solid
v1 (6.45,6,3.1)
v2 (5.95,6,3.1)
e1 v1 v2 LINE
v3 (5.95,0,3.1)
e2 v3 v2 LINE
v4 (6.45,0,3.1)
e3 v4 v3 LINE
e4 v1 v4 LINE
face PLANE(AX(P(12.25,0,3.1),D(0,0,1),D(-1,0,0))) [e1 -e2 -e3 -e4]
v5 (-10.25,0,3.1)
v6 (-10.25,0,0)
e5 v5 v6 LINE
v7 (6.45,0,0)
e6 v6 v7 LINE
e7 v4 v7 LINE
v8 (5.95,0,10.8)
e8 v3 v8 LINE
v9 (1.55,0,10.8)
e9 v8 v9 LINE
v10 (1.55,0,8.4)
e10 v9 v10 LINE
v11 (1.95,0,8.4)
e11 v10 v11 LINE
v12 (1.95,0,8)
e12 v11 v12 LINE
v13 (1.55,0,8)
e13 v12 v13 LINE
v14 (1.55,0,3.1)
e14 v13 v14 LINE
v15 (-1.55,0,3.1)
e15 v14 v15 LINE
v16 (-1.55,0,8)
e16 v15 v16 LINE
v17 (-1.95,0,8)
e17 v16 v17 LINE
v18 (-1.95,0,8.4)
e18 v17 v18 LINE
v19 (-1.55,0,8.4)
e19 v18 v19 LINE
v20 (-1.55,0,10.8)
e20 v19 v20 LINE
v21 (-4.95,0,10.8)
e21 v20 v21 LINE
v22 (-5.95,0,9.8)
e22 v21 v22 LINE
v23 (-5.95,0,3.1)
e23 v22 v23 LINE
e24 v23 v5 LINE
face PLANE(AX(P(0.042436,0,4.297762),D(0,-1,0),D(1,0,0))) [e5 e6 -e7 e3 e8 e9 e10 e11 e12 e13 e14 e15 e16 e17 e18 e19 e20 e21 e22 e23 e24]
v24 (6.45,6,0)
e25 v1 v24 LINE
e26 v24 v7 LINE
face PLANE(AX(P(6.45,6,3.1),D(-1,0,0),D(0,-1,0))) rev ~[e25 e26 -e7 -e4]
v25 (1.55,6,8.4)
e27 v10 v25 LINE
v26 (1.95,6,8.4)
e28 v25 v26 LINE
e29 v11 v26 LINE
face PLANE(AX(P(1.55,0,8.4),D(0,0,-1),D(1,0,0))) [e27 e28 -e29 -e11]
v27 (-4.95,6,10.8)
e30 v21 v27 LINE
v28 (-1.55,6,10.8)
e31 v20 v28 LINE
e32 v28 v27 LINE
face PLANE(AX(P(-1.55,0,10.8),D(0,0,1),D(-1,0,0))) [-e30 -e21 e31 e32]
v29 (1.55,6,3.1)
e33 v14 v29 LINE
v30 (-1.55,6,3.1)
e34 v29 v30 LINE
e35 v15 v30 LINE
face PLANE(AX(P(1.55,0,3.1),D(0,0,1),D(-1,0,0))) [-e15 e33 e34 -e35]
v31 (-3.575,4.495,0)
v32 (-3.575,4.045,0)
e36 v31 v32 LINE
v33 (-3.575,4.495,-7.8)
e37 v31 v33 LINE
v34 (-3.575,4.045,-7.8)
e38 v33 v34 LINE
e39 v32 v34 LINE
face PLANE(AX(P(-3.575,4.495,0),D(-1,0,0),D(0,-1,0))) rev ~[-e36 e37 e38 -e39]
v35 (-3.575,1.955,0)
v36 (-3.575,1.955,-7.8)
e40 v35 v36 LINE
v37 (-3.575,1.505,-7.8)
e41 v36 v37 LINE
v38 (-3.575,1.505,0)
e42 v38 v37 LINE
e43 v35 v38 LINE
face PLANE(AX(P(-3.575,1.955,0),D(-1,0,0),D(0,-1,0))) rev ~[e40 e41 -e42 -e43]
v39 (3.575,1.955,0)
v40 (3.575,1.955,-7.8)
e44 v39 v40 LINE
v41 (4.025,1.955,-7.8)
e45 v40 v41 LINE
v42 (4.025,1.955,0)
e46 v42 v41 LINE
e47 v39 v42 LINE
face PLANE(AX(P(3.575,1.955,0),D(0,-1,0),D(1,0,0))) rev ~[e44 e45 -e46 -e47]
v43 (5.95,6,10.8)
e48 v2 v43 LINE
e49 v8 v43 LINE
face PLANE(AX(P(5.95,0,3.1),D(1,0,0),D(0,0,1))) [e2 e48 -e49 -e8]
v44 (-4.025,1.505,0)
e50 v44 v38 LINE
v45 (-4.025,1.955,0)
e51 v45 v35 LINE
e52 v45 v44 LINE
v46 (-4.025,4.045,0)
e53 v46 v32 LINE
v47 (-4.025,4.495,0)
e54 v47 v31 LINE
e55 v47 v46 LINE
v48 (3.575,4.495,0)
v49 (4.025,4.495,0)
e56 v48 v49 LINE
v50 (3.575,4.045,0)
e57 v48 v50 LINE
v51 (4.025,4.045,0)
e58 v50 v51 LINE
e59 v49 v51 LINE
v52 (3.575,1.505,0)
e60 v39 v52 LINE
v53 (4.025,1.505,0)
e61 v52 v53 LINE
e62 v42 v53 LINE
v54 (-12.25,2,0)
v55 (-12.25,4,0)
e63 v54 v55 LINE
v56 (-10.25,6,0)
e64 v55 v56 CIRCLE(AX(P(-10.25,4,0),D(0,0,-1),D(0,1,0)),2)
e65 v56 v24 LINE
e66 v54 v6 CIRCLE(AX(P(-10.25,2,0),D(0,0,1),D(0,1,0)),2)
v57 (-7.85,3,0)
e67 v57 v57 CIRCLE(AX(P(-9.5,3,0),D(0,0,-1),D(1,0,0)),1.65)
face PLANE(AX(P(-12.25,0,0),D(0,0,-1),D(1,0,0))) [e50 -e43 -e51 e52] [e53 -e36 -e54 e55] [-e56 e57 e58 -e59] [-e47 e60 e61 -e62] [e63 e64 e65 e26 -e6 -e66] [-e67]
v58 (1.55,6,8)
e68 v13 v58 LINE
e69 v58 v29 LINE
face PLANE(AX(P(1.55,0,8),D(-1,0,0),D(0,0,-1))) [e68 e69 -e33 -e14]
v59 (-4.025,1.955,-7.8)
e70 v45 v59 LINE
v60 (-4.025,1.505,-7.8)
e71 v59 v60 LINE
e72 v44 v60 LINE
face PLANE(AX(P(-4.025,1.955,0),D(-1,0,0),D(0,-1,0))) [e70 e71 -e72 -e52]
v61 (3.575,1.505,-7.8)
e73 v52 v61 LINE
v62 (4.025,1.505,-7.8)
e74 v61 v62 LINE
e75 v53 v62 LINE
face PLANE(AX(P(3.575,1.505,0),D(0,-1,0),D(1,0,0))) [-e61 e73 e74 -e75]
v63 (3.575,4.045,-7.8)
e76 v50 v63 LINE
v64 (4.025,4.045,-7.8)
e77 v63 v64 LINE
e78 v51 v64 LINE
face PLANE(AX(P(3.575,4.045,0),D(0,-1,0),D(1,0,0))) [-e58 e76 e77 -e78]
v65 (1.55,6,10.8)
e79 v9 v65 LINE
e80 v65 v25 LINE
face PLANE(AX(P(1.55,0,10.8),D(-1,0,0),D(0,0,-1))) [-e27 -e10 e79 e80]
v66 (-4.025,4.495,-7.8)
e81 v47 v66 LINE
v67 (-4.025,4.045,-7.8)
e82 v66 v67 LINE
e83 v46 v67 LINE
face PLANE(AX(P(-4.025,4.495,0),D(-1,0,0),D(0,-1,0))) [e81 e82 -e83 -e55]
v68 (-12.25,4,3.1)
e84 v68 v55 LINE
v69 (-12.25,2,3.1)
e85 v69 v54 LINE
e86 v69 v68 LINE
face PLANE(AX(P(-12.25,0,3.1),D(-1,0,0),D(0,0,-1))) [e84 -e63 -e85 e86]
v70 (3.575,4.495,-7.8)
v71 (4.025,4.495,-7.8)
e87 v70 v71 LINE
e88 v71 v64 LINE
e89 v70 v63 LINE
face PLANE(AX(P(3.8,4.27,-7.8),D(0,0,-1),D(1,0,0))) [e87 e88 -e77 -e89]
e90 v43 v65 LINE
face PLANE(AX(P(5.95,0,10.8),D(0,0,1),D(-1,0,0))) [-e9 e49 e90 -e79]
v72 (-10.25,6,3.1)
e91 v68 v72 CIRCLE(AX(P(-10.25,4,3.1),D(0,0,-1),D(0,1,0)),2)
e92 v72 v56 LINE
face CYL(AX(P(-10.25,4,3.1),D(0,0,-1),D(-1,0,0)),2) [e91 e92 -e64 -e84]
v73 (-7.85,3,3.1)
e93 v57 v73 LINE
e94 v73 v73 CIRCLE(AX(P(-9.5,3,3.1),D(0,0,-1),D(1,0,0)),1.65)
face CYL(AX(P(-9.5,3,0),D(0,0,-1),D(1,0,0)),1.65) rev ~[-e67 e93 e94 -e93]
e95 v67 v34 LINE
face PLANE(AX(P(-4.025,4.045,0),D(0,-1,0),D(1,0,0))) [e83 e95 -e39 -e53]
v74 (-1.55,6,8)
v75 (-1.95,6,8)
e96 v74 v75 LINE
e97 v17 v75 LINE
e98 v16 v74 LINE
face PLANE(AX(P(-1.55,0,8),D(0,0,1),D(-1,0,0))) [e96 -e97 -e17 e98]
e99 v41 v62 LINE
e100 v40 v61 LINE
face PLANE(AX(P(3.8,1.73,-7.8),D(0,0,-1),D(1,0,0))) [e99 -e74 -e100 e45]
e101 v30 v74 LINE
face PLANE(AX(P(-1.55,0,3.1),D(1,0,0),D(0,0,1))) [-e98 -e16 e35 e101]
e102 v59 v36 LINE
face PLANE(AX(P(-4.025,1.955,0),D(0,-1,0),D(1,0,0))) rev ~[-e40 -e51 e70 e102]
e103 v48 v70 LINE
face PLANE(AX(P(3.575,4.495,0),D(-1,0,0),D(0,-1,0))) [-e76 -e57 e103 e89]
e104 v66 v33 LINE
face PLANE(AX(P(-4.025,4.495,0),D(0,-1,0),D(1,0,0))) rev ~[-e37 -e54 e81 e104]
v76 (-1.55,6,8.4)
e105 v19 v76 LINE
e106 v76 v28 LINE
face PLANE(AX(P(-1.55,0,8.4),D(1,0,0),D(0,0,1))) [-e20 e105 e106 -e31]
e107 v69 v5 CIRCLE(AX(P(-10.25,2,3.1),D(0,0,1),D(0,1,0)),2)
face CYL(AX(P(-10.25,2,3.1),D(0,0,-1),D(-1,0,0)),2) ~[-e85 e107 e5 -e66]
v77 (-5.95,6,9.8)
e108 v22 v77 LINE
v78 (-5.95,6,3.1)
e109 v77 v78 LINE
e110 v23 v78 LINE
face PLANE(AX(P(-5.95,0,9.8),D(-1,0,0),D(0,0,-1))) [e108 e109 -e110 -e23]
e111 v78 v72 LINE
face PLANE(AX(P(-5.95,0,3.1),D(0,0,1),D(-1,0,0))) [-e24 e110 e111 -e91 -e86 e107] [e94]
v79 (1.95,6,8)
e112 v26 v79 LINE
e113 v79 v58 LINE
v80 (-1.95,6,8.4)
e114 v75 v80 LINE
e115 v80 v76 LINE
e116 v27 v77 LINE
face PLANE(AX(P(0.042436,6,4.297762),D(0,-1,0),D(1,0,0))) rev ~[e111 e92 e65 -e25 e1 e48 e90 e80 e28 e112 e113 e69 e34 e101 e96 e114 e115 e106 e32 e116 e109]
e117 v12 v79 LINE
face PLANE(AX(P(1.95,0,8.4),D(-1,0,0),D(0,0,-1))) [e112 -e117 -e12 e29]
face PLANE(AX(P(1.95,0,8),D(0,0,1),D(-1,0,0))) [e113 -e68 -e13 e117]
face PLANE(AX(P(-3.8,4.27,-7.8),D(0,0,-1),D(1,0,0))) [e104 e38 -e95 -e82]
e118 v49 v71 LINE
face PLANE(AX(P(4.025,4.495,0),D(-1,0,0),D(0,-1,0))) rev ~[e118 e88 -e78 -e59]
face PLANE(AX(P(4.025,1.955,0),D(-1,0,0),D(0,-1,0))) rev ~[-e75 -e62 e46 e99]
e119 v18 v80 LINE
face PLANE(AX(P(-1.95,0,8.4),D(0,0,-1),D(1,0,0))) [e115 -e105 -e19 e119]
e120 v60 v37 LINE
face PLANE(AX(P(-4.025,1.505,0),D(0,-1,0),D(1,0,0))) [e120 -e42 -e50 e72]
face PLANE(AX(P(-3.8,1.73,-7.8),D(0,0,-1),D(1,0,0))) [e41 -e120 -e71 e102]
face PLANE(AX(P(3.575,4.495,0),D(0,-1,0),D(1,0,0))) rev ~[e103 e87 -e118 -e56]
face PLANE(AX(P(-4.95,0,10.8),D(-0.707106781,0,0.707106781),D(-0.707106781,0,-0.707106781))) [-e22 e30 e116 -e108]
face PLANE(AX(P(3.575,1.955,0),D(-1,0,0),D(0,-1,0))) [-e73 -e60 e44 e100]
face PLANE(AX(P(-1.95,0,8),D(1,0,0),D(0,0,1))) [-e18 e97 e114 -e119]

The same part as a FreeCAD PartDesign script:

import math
import FreeCAD as App
import Part
import Sketcher
from FreeCAD import Vector
Q = App.Units.Quantity


def edges_at(feature, points):
    """Names of the edges that pass closest to the given points."""
    edges = feature.Shape.Edges
    near = lambda p: min(range(len(edges)), key=lambda i: edges[i].distToShape(Part.Vertex(*p))[0])
    return sorted({f"Edge{near(p) + 1}" for p in points})


def add_polygon(sketch, points):
    """Adds a closed chain of lines whose ends are joined by coincident constraints."""
    first, n = sketch.GeometryCount, len(points)
    for a, b in zip(points, points[1:] + points[:1]):
        sketch.addGeometry(Part.LineSegment(App.Vector(*a, 0), App.Vector(*b, 0)), False)
    for i in range(n):
        sketch.addConstraint(Sketcher.Constraint("Coincident", first + i, 2, first + (i + 1) % n, 1))

doc = App.newDocument("Part")
body = doc.addObject("PartDesign::Body", "Body")

# Sketch on XZ plane
sketch1 = body.newObject("Sketcher::SketchObject", "Sketch")
sketch1.AttachmentSupport = (doc.getObject("XZ_Plane"), [""])
sketch1.MapMode = "FlatFace"
add_polygon(sketch1, [(-12.25, 0), (12.25, 0), (12.25, 3.1), (5.95, 3.1), (5.95, 10.8), (1.55, 10.8), (1.55, 8.4), (1.95, 8.4), (1.95, 8), (1.55, 8), (1.55, 3.1), (-1.55, 3.1), (-1.55, 8), (-1.95, 8), (-1.95, 8.4), (-1.55, 8.4), (-1.55, 10.8), (-4.95, 10.8), (-5.95, 9.8), (-5.95, 3.1), (-12.25, 3.1)])  # lines 0-20
sketch1.addConstraint([
    Sketcher.Constraint("Horizontal", 0),
    Sketcher.Constraint("Vertical", 1),
    Sketcher.Constraint("Horizontal", 2),
    Sketcher.Constraint("Vertical", 3),
    Sketcher.Constraint("Horizontal", 4),
    Sketcher.Constraint("Vertical", 5),
    Sketcher.Constraint("Horizontal", 6),
    Sketcher.Constraint("Vertical", 7),
    Sketcher.Constraint("Horizontal", 8),
    Sketcher.Constraint("Vertical", 9),
    Sketcher.Constraint("Horizontal", 10),
    Sketcher.Constraint("Vertical", 11),
    Sketcher.Constraint("Horizontal", 12),
    Sketcher.Constraint("Vertical", 13),
    Sketcher.Constraint("Horizontal", 14),
    Sketcher.Constraint("Vertical", 15),
    Sketcher.Constraint("Horizontal", 16),
    Sketcher.Constraint("Vertical", 18),
    Sketcher.Constraint("Horizontal", 19),
    Sketcher.Constraint("Vertical", 20),
    Sketcher.Constraint("Symmetric", 0, 2, 20, 2, -1, 1),
    Sketcher.Constraint("Symmetric", 8, 2, 11, 2, -2),
    Sketcher.Constraint("Symmetric", 6, 2, 13, 2, -2),
    Sketcher.Constraint("Symmetric", 4, 2, 15, 2, -2),
    Sketcher.Constraint("Symmetric", 2, 2, 18, 2, -2),
    Sketcher.Constraint("Horizontal", 2, 2, 9, 2),
    Sketcher.Constraint("Vertical", 5, 2, 8, 2),
    Sketcher.Constraint("Equal", 10, 1),
    Sketcher.Constraint("Equal", 14, 7),
    Sketcher.Constraint("Angle", 17, Q("-135 deg")),
    Sketcher.Constraint("DistanceX", 0, 1, 0, 2, 24.5),
    Sketcher.Constraint("DistanceX", 2, 2, 2, 1, 6.3),
    Sketcher.Constraint("DistanceX", 4, 2, 4, 1, 4.4),
    Sketcher.Constraint("DistanceX", 6, 1, 6, 2, 0.4),
    Sketcher.Constraint("DistanceX", 16, 2, 16, 1, 3.4),
    Sketcher.Constraint("DistanceY", 3, 1, 3, 2, 7.7),
    Sketcher.Constraint("DistanceY", 5, 2, 5, 1, 2.4),
])
pad1 = body.newObject("PartDesign::Pad", "Pad")
pad1.Profile = sketch1
pad1.Length = 6
pad1.Reversed = True
doc.recompute()

fillet = body.newObject("PartDesign::Fillet", "Fillet")
fillet.Base = (pad1, edges_at(pad1, [
    (-12.25, 0, 1.55),
    (12.25, 0, 1.55),
    (12.25, 6, 1.55),
    (-12.25, 6, 1.55),
]))
fillet.Radius = 2

# Sketch on XY plane
sketch2 = body.newObject("Sketcher::SketchObject", "Sketch001")
sketch2.AttachmentSupport = (doc.getObject("XY_Plane"), [""])
sketch2.MapMode = "FlatFace"
sketch2.addGeometry([
    Part.Circle(Vector(-9.5, 3, 0), Vector(0, 0, 1), 1.65),
    Part.Circle(Vector(9.5, 3, 0), Vector(0, 0, 1), 1.65),
], False)
sketch2.addConstraint([
    Sketcher.Constraint("Equal", 0, 1),
    Sketcher.Constraint("Symmetric", 0, 3, 1, 3, -2),
    Sketcher.Constraint("Diameter", 0, 3.3),
    Sketcher.Constraint("DistanceY", -1, 1, 0, 3, 3.0),
    Sketcher.Constraint("DistanceX", 0, 3, 1, 3, 19.0),
])
pocket1 = body.newObject("PartDesign::Pocket", "Pocket")
pocket1.Profile = sketch2
pocket1.Type = "ThroughAll"
pocket1.Reversed = True

# Sketch on XY plane
sketch3 = body.newObject("Sketcher::SketchObject", "Sketch002")
sketch3.AttachmentSupport = (doc.getObject("XY_Plane"), [""])
sketch3.MapMode = "FlatFace"
add_polygon(sketch3, [(-4.025, 1.505), (-4.025, 1.955), (-3.575, 1.955), (-3.575, 1.505)])  # lines 0-3
add_polygon(sketch3, [(-4.025, 4.045), (-4.025, 4.495), (-3.575, 4.495), (-3.575, 4.045)])  # lines 4-7
add_polygon(sketch3, [(3.575, 4.045), (3.575, 4.495), (4.025, 4.495), (4.025, 4.045)])  # lines 8-11
add_polygon(sketch3, [(3.575, 1.505), (3.575, 1.955), (4.025, 1.955), (4.025, 1.505)])  # lines 12-15
sketch3.addConstraint([
    Sketcher.Constraint("Vertical", 0),
    Sketcher.Constraint("Horizontal", 1),
    Sketcher.Constraint("Vertical", 2),
    Sketcher.Constraint("Horizontal", 3),
    Sketcher.Constraint("Vertical", 4),
    Sketcher.Constraint("Horizontal", 5),
    Sketcher.Constraint("Vertical", 6),
    Sketcher.Constraint("Horizontal", 7),
    Sketcher.Constraint("Vertical", 8),
    Sketcher.Constraint("Horizontal", 9),
    Sketcher.Constraint("Vertical", 10),
    Sketcher.Constraint("Horizontal", 11),
    Sketcher.Constraint("Vertical", 12),
    Sketcher.Constraint("Horizontal", 13),
    Sketcher.Constraint("Vertical", 14),
    Sketcher.Constraint("Horizontal", 15),
    Sketcher.Constraint("Symmetric", 5, 2, 8, 2, -2),
    Sketcher.Constraint("Symmetric", 7, 2, 10, 2, -2),
    Sketcher.Constraint("Symmetric", 1, 2, 12, 2, -2),
    Sketcher.Constraint("Symmetric", 3, 2, 14, 2, -2),
    Sketcher.Constraint("Vertical", 3, 2, 4, 2),
    Sketcher.Constraint("Vertical", 2, 2, 5, 2),
    Sketcher.Constraint("Equal", 15, 0),
    Sketcher.Constraint("Equal", 2, 4),
    Sketcher.Constraint("DistanceX", 1, 1, 1, 2, 0.45),
    Sketcher.Constraint("DistanceX", 4, 2, 8, 2, 7.6),
    Sketcher.Constraint("DistanceY", 0, 2, 4, 2, 2.54),
    Sketcher.Constraint("DistanceY", -1, 1, 0, 2, 1.955),
])
pad2 = body.newObject("PartDesign::Pad", "Pad001")
pad2.Profile = sketch3
pad2.Length = 7.8
pad2.Reversed = True

# Sketch on XY plane
sketch4 = body.newObject("Sketcher::SketchObject", "Sketch003")
sketch4.AttachmentSupport = (doc.getObject("XY_Plane"), [""])
sketch4.MapMode = "FlatFace"
sketch4.AttachmentOffset = App.Placement(Vector(0, 0, 3.1), App.Rotation())
sketch4.addGeometry([
    Part.LineSegment(Vector(10.25, 6, 0), Vector(6.45, 6, 0)),  # 0
    Part.LineSegment(Vector(6.45, 6, 0), Vector(6.45, 0, 0)),  # 1
    Part.LineSegment(Vector(6.45, 0, 0), Vector(10.25, 0, 0)),  # 2
    Part.ArcOfCircle(Part.Circle(Vector(10.25, 2, 0), Vector(0, 0, 1), 2), math.radians(-90), math.radians(0)),  # 3
    Part.LineSegment(Vector(12.25, 2, 0), Vector(12.25, 4, 0)),  # 4
    Part.ArcOfCircle(Part.Circle(Vector(10.25, 4, 0), Vector(0, 0, 1), 2), math.radians(0), math.radians(90)),  # 5
    Part.Circle(Vector(9.5, 3, 0), Vector(0, 0, 1), 1.65),  # 6
], False)
sketch4.addConstraint([
    Sketcher.Constraint("Coincident", 0, 2, 1, 1),
    Sketcher.Constraint("Coincident", 1, 2, 2, 1),
    Sketcher.Constraint("Tangent", 2, 2, 3, 1),
    Sketcher.Constraint("Tangent", 3, 2, 4, 1),
    Sketcher.Constraint("Tangent", 4, 2, 5, 1),
    Sketcher.Constraint("Tangent", 5, 2, 0, 1),
    Sketcher.Constraint("Horizontal", 0),
    Sketcher.Constraint("Vertical", 1),
    Sketcher.Constraint("Horizontal", 2),
    Sketcher.Constraint("Vertical", 4),
    Sketcher.Constraint("Equal", 3, 5),
    Sketcher.Constraint("PointOnObject", 1, 2, -1),
    Sketcher.Constraint("Radius", 3, 2.0),
    Sketcher.Constraint("Diameter", 6, 3.3),
    Sketcher.Constraint("DistanceY", 1, 2, 1, 1, 6.0),
    Sketcher.Constraint("DistanceX", 0, 2, 0, 1, 3.8),
    Sketcher.Constraint("DistanceY", -1, 1, 6, 3, 3.0),
    Sketcher.Constraint("DistanceX", -1, 1, 6, 3, 9.5),
    Sketcher.Constraint("DistanceX", -1, 1, 3, 3, 10.25),
])
pocket2 = body.newObject("PartDesign::Pocket", "Pocket001")
pocket2.Profile = sketch4
pocket2.Type = "ThroughAll"

doc.recompute()
